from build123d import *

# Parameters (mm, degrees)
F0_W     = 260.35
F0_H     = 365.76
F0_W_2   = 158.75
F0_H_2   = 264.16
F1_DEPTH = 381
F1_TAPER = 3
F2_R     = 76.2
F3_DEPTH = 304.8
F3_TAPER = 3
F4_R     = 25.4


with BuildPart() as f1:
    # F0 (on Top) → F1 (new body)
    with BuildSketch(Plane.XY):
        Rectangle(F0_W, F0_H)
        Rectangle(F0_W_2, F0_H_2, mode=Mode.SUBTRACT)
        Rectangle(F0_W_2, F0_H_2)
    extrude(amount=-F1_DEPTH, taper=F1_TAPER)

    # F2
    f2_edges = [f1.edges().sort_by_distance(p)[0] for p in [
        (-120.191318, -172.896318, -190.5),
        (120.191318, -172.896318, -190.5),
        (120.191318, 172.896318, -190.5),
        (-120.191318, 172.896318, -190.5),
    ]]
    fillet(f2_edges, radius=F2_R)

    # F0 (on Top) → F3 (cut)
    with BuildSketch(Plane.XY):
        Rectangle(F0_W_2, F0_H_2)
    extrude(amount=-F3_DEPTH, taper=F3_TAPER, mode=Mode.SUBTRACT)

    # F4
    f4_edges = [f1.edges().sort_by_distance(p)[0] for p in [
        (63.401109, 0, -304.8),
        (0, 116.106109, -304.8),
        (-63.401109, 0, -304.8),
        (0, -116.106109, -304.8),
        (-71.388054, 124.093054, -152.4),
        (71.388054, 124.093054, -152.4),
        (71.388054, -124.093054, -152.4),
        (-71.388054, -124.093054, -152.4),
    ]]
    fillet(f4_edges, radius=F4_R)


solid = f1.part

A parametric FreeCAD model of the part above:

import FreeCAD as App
import Part
import Sketcher
Q = App.Units.Quantity


def edges_at(feature, points):
    """Names of the edges that pass closest to the given points."""
    edges = feature.Shape.Edges
    near = lambda p: min(range(len(edges)), key=lambda i: edges[i].distToShape(Part.Vertex(*p))[0])
    return sorted({f"Edge{near(p) + 1}" for p in points})

doc = App.newDocument("Part")
body = doc.addObject("PartDesign::Body", "Body")

# Sketch on XY plane
sketch1 = body.newObject("Sketcher::SketchObject", "Sketch")
sketch1.AttachmentSupport = (doc.getObject("XY_Plane"), [""])
sketch1.MapMode = "FlatFace"
sketch1.addGeometry(Part.LineSegment(App.Vector(-130, 183, 0), App.Vector(-130, -183, 0)), False)
sketch1.addGeometry(Part.LineSegment(App.Vector(-130, -183, 0), App.Vector(130, -183, 0)), False)
sketch1.addGeometry(Part.LineSegment(App.Vector(130, -183, 0), App.Vector(130, 183, 0)), False)
sketch1.addGeometry(Part.LineSegment(App.Vector(130, 183, 0), App.Vector(-130, 183, 0)), False)
sketch1.addConstraint(Sketcher.Constraint("Coincident", 0, 2, 1, 1))
sketch1.addConstraint(Sketcher.Constraint("Coincident", 1, 2, 2, 1))
sketch1.addConstraint(Sketcher.Constraint("Coincident", 2, 2, 3, 1))
sketch1.addConstraint(Sketcher.Constraint("Coincident", 3, 2, 0, 1))
sketch1.addConstraint(Sketcher.Constraint("Vertical", 0))
sketch1.addConstraint(Sketcher.Constraint("Horizontal", 1))
sketch1.addConstraint(Sketcher.Constraint("Vertical", 2))
sketch1.addConstraint(Sketcher.Constraint("Horizontal", 3))
sketch1.addConstraint(Sketcher.Constraint("Symmetric", 0, 2, 2, 2, -1, 1))
sketch1.addConstraint(Sketcher.Constraint("DistanceY", 0, 2, 0, 1, Q("14.4 in")))
sketch1.addConstraint(Sketcher.Constraint("DistanceX", 1, 1, 1, 2, Q("10.25 in")))
pad1 = body.newObject("PartDesign::Pad", "Pad")
pad1.Profile = sketch1
pad1.Length = Q("15 in")
pad1.Reversed = True
pad1.TaperAngle = -3
doc.recompute()

fillet = body.newObject("PartDesign::Fillet", "Fillet")
fillet.Base = (pad1, edges_at(pad1, [
    (-120.191, -172.896, -190.5),
    (120.191, -172.896, -190.5),
    (120.191, 172.896, -190.5),
    (-120.191, 172.896, -190.5),
]))
fillet.Radius = Q("3 in")

# Sketch on XY plane
sketch2 = body.newObject("Sketcher::SketchObject", "Sketch001")
sketch2.AttachmentSupport = (doc.getObject("XY_Plane"), [""])
sketch2.MapMode = "FlatFace"
sketch2.addGeometry(Part.LineSegment(App.Vector(-79, 132, 0), App.Vector(-79, -132, 0)), False)
sketch2.addGeometry(Part.LineSegment(App.Vector(-79, -132, 0), App.Vector(79, -132, 0)), False)
sketch2.addGeometry(Part.LineSegment(App.Vector(79, -132, 0), App.Vector(79, 132, 0)), False)
sketch2.addGeometry(Part.LineSegment(App.Vector(79, 132, 0), App.Vector(-79, 132, 0)), False)
sketch2.addConstraint(Sketcher.Constraint("Coincident", 0, 2, 1, 1))
sketch2.addConstraint(Sketcher.Constraint("Coincident", 1, 2, 2, 1))
sketch2.addConstraint(Sketcher.Constraint("Coincident", 2, 2, 3, 1))
sketch2.addConstraint(Sketcher.Constraint("Coincident", 3, 2, 0, 1))
sketch2.addConstraint(Sketcher.Constraint("Vertical", 0))
sketch2.addConstraint(Sketcher.Constraint("Horizontal", 1))
sketch2.addConstraint(Sketcher.Constraint("Vertical", 2))
sketch2.addConstraint(Sketcher.Constraint("Horizontal", 3))
sketch2.addConstraint(Sketcher.Constraint("Symmetric", 0, 2, 2, 2, -1, 1))
sketch2.addConstraint(Sketcher.Constraint("DistanceY", 0, 2, 0, 1, Q("10.4 in")))
sketch2.addConstraint(Sketcher.Constraint("DistanceX", 1, 1, 1, 2, Q("6.25 in")))
pocket1 = body.newObject("PartDesign::Pocket", "Pocket")
pocket1.Profile = sketch2
pocket1.Length = Q("12 in")
pocket1.TaperAngle = -3
doc.recompute()

fillet2 = body.newObject("PartDesign::Fillet", "Fillet001")
fillet2.Base = (pocket1, edges_at(pocket1, [
    (63.401, 0, -304.8),
    (0, 116.106, -304.8),
    (-63.401, 0, -304.8),
    (0, -116.106, -304.8),
    (-71.388, 124.093, -152.4),
    (71.388, 124.093, -152.4),
    (71.388, -124.093, -152.4),
    (-71.388, -124.093, -152.4),
]))
fillet2.Radius = Q("1 in")

doc.recompute()
